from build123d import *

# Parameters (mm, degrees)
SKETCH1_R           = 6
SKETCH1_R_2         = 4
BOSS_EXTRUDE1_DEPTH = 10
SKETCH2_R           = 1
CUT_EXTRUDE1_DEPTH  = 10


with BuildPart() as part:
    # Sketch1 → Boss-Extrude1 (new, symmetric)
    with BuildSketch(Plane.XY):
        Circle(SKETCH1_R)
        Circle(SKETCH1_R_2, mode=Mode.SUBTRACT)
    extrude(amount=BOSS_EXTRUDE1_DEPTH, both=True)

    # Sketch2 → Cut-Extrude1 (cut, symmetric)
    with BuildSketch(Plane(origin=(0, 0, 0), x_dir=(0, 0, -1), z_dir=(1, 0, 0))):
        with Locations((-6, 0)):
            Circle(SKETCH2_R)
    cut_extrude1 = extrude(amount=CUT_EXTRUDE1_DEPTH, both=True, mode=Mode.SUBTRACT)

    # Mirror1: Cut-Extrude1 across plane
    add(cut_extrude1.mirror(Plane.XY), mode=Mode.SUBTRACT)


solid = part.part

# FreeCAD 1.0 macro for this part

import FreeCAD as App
import Part
import Sketcher

doc = App.newDocument("Part")
body = doc.addObject("PartDesign::Body", "Body")

# Sketch on XY plane
sketch1 = doc.addObject("Sketcher::SketchObject", "Sketch")
body.addObject(sketch1)
sketch1.AttachmentSupport = (doc.XY_Plane, [""])
sketch1.MapMode = "FlatFace"
sketch1.addGeometry([
    Part.Circle(App.Vector(0, 0, 0), App.Vector(0, 0, 1), 6),
    Part.Circle(App.Vector(0, 0, 0), App.Vector(0, 0, 1), 4),
], False)
sketch1.addConstraint([
    Sketcher.Constraint("Coincident", 0, 3, -1, 1),
    Sketcher.Constraint("Coincident", 1, 3, -1, 1),
    Sketcher.Constraint("Diameter", 0, 12.0),
    Sketcher.Constraint("Diameter", 1, 8.0),
])
pad1 = doc.addObject("PartDesign::Pad", "Pad")
body.addObject(pad1)
pad1.Profile = sketch1
pad1.Length = 20
pad1.Midplane = True

# Sketch on YZ plane
sketch2 = doc.addObject("Sketcher::SketchObject", "Sketch001")
body.addObject(sketch2)
sketch2.AttachmentSupport = (doc.YZ_Plane, [""])
sketch2.MapMode = "FlatFace"
sketch2.addGeometry(Part.Circle(App.Vector(0, 6, 0), App.Vector(0, 0, 1), 1), False)
sketch2.addConstraint([
    Sketcher.Constraint("PointOnObject", 0, 3, -2),
    Sketcher.Constraint("Diameter", 0, 2.0),
    Sketcher.Constraint("DistanceY", -1, 1, 0, 3, 6.0),
])
pocket1 = doc.addObject("PartDesign::Pocket", "Pocket")
body.addObject(pocket1)
pocket1.Profile = sketch2
pocket1.Length = 20
pocket1.Midplane = True
doc.recompute()

mirrored = doc.addObject("PartDesign::Mirrored", "Mirrored")
body.addObject(mirrored)
mirrored.Originals = [pocket1]
mirrored.MirrorPlane = (doc.XY_Plane, [""])
body.Tip = mirrored

doc.recompute()
